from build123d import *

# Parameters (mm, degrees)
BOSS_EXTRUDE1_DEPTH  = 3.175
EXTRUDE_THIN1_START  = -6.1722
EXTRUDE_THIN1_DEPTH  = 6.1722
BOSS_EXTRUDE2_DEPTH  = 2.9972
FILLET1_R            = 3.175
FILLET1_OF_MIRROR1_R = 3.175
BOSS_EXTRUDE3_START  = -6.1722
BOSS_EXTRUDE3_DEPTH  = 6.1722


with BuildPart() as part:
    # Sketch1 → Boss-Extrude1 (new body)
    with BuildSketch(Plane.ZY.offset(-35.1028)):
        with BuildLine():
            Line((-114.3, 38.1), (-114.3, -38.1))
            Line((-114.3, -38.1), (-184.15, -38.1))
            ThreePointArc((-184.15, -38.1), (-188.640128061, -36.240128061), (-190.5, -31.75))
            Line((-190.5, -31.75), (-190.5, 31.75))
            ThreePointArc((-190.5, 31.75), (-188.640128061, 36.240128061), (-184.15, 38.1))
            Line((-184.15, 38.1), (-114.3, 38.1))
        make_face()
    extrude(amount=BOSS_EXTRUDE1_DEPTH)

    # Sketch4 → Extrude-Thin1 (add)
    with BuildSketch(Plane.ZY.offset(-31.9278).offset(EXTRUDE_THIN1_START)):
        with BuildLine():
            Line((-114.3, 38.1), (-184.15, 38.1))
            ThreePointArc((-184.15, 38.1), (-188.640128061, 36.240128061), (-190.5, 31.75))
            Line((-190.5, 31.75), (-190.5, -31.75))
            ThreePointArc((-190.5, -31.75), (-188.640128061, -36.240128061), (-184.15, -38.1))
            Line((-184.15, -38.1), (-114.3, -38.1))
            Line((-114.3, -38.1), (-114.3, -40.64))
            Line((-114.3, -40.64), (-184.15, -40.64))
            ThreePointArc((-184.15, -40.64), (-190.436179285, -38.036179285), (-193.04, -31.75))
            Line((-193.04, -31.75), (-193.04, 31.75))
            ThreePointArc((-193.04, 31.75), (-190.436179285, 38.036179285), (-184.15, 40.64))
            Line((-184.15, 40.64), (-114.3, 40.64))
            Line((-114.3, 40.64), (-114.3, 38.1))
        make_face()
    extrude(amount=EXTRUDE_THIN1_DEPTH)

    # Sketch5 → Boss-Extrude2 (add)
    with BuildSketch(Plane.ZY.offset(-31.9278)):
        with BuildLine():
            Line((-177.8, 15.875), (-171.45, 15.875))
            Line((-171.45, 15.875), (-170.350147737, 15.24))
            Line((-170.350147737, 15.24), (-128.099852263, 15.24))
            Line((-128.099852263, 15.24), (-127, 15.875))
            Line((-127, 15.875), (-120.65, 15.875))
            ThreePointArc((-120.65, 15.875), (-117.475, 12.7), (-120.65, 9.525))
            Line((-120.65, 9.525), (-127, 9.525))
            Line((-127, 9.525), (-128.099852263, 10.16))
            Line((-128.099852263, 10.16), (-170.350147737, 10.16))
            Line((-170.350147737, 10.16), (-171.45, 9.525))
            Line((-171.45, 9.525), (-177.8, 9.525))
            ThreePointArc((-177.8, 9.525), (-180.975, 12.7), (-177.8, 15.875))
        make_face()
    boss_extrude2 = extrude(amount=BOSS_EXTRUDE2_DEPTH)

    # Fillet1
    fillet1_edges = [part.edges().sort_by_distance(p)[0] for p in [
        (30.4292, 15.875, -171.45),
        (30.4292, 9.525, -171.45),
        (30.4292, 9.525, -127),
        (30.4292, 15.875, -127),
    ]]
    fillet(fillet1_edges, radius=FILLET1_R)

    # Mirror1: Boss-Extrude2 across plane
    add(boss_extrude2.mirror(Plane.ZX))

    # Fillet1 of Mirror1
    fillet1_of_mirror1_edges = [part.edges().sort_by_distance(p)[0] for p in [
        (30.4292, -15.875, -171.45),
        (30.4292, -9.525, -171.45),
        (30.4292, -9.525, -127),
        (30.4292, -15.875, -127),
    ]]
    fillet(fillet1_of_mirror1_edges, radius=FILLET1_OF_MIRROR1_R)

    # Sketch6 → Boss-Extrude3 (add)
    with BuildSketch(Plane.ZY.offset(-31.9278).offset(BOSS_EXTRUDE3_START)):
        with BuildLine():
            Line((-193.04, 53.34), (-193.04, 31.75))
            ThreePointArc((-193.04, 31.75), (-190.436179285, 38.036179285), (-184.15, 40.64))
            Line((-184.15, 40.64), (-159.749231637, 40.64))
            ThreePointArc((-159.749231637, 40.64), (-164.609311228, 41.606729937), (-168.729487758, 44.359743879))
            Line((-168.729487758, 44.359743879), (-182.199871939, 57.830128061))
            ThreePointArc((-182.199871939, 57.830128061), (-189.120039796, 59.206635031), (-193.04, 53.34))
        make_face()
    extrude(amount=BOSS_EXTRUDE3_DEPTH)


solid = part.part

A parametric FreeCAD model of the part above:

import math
import FreeCAD as App
import Part
import Sketcher

V = App.Vector
Q = App.Units.Quantity


def edges_at(feature, points):
    """Names of the edges that pass closest to the given points."""
    edges = feature.Shape.Edges
    near = lambda p: min(range(len(edges)), key=lambda i: edges[i].distToShape(Part.Vertex(*p))[0])
    return sorted({f"Edge{near(p) + 1}" for p in points})

doc = App.newDocument("Part")
body = doc.addObject("PartDesign::Body", "Body")

sketch1 = body.newObject("Sketcher::SketchObject", "Sketch")
sketch1.AttachmentSupport = (doc.getObject("YZ_Plane"), [""])
sketch1.MapMode = "FlatFace"
sketch1.AttachmentOffset = App.Placement(V(0, 0, 1.382 * 25.4), App.Rotation())
sketch1.addGeometry(Part.LineSegment(V(-38.1, -114.3, 0), V(38.1, -114.3, 0)), False)
sketch1.addGeometry(Part.LineSegment(V(38.1, -114.3, 0), V(38.1, -184.15, 0)), False)
sketch1.addGeometry(Part.ArcOfCircle(Part.Circle(V(31.75, -184.15, 0), V(0, 0, 1), 6.35), math.radians(-90), math.radians(0)), False)
sketch1.addGeometry(Part.LineSegment(V(31.75, -190.5, 0), V(-31.75, -190.5, 0)), False)
sketch1.addGeometry(Part.ArcOfCircle(Part.Circle(V(-31.75, -184.15, 0), V(0, 0, 1), 6.35), math.radians(180), math.radians(270)), False)
sketch1.addGeometry(Part.LineSegment(V(-38.1, -184.15, 0), V(-38.1, -114.3, 0)), False)
sketch1.addConstraint(Sketcher.Constraint("Coincident", 0, 2, 1, 1))
sketch1.addConstraint(Sketcher.Constraint("Tangent", 1, 2, 2, 2))
sketch1.addConstraint(Sketcher.Constraint("Tangent", 2, 1, 3, 1))
sketch1.addConstraint(Sketcher.Constraint("Tangent", 3, 2, 4, 2))
sketch1.addConstraint(Sketcher.Constraint("Tangent", 4, 1, 5, 1))
sketch1.addConstraint(Sketcher.Constraint("Coincident", 5, 2, 0, 1))
sketch1.addConstraint(Sketcher.Constraint("Horizontal", 0))
sketch1.addConstraint(Sketcher.Constraint("Vertical", 1))
sketch1.addConstraint(Sketcher.Constraint("Horizontal", 3))
sketch1.addConstraint(Sketcher.Constraint("Vertical", 5))
sketch1.addConstraint(Sketcher.Constraint("Equal", 2, 4))
sketch1.addConstraint(Sketcher.Constraint("DistanceX", 0, 1, 0, 2, Q("3 in")))
sketch1.addConstraint(Sketcher.Constraint("Radius", 2, Q("0.25 in")))
sketch1.addConstraint(Sketcher.Constraint("DistanceY", 2, 1, 0, 2, Q("3 in")))
sketch1.addConstraint(Sketcher.Constraint("DistanceX", -1, 1, 0, 2, Q("1.5 in")))
sketch1.addConstraint(Sketcher.Constraint("DistanceY", 0, 2, -1, 1, Q("4.5 in")))
pad1 = body.newObject("PartDesign::Pad", "Pad")
pad1.Profile = sketch1
pad1.Length = Q("0.125 in")
pad1.Reversed = True

sketch2 = body.newObject("Sketcher::SketchObject", "Sketch001")
sketch2.AttachmentSupport = (doc.getObject("YZ_Plane"), [""])
sketch2.MapMode = "FlatFace"
sketch2.AttachmentOffset = App.Placement(V(0, 0, 1.5 * 25.4), App.Rotation())
sketch2.addGeometry(Part.LineSegment(V(38.1, -184.15, 0), V(38.1, -114.3, 0)), False)
sketch2.addGeometry(Part.LineSegment(V(38.1, -114.3, 0), V(40.64, -114.3, 0)), False)
sketch2.addGeometry(Part.LineSegment(V(40.64, -114.3, 0), V(40.64, -184.15, 0)), False)
sketch2.addGeometry(Part.ArcOfCircle(Part.Circle(V(31.75, -184.15, 0), V(0, 0, 1), 8.89), math.radians(-90), math.radians(0)), False)
sketch2.addGeometry(Part.LineSegment(V(31.75, -193.04, 0), V(-31.75, -193.04, 0)), False)
sketch2.addGeometry(Part.ArcOfCircle(Part.Circle(V(-31.75, -184.15, 0), V(0, 0, 1), 8.89), math.radians(180), math.radians(270)), False)
sketch2.addGeometry(Part.LineSegment(V(-40.64, -184.15, 0), V(-40.64, -114.3, 0)), False)
sketch2.addGeometry(Part.LineSegment(V(-40.64, -114.3, 0), V(-38.1, -114.3, 0)), False)
sketch2.addGeometry(Part.LineSegment(V(-38.1, -114.3, 0), V(-38.1, -184.15, 0)), False)
sketch2.addGeometry(Part.ArcOfCircle(Part.Circle(V(-31.75, -184.15, 0), V(0, 0, 1), 6.35), math.radians(180), math.radians(270)), False)
sketch2.addGeometry(Part.LineSegment(V(-31.75, -190.5, 0), V(31.75, -190.5, 0)), False)
sketch2.addGeometry(Part.ArcOfCircle(Part.Circle(V(31.75, -184.15, 0), V(0, 0, 1), 6.35), math.radians(-90), math.radians(0)), False)
sketch2.addConstraint(Sketcher.Constraint("Coincident", 0, 2, 1, 1))
sketch2.addConstraint(Sketcher.Constraint("Coincident", 1, 2, 2, 1))
sketch2.addConstraint(Sketcher.Constraint("Tangent", 2, 2, 3, 2))
sketch2.addConstraint(Sketcher.Constraint("Tangent", 3, 1, 4, 1))
sketch2.addConstraint(Sketcher.Constraint("Tangent", 4, 2, 5, 2))
sketch2.addConstraint(Sketcher.Constraint("Tangent", 5, 1, 6, 1))
sketch2.addConstraint(Sketcher.Constraint("Coincident", 6, 2, 7, 1))
sketch2.addConstraint(Sketcher.Constraint("Coincident", 7, 2, 8, 1))
sketch2.addConstraint(Sketcher.Constraint("Tangent", 8, 2, 9, 1))
sketch2.addConstraint(Sketcher.Constraint("Tangent", 9, 2, 10, 1))
sketch2.addConstraint(Sketcher.Constraint("Tangent", 10, 2, 11, 1))
sketch2.addConstraint(Sketcher.Constraint("Tangent", 11, 2, 0, 1))
sketch2.addConstraint(Sketcher.Constraint("Vertical", 0))
sketch2.addConstraint(Sketcher.Constraint("Horizontal", 1))
sketch2.addConstraint(Sketcher.Constraint("Vertical", 2))
sketch2.addConstraint(Sketcher.Constraint("Horizontal", 4))
sketch2.addConstraint(Sketcher.Constraint("Vertical", 6))
sketch2.addConstraint(Sketcher.Constraint("Horizontal", 7))
sketch2.addConstraint(Sketcher.Constraint("Vertical", 8))
sketch2.addConstraint(Sketcher.Constraint("Horizontal", 10))
sketch2.addConstraint(Sketcher.Constraint("Coincident", 9, 3, 5, 3))
sketch2.addConstraint(Sketcher.Constraint("Coincident", 11, 3, 3, 3))
sketch2.addConstraint(Sketcher.Constraint("Equal", 3, 5))
sketch2.addConstraint(Sketcher.Constraint("Symmetric", 1, 2, 6, 2, -2))
sketch2.addConstraint(Sketcher.Constraint("Radius", 3, Q("0.35 in")))
sketch2.addConstraint(Sketcher.Constraint("Radius", 9, Q("0.25 in")))
sketch2.addConstraint(Sketcher.Constraint("DistanceX", 4, 2, 4, 1, Q("2.5 in")))
sketch2.addConstraint(Sketcher.Constraint("DistanceY", 0, 1, 0, 2, Q("2.75 in")))
sketch2.addConstraint(Sketcher.Constraint("DistanceY", 0, 2, -1, 1, Q("4.5 in")))
pad2 = body.newObject("PartDesign::Pad", "Pad001")
pad2.Profile = sketch2
pad2.Length = Q("0.243 in")
pad2.Reversed = True

sketch3 = body.newObject("Sketcher::SketchObject", "Sketch002")
sketch3.AttachmentSupport = (doc.getObject("YZ_Plane"), [""])
sketch3.MapMode = "FlatFace"
sketch3.AttachmentOffset = App.Placement(V(0, 0, 1.257 * 25.4), App.Rotation())
sketch3.addGeometry(Part.LineSegment(V(15.875, -171.45, 0), V(15.875, -177.8, 0)), False)
sketch3.addGeometry(Part.ArcOfCircle(Part.Circle(V(12.7, -177.8, 0), V(0, 0, 1), 3.175), math.radians(180), math.radians(360)), False)
sketch3.addGeometry(Part.LineSegment(V(9.525, -177.8, 0), V(9.525, -171.45, 0)), False)
sketch3.addGeometry(Part.LineSegment(V(9.525, -171.45, 0), V(10.16, -170.350148, 0)), False)
sketch3.addGeometry(Part.LineSegment(V(10.16, -170.350148, 0), V(10.16, -128.099852, 0)), False)
sketch3.addGeometry(Part.LineSegment(V(10.16, -128.099852, 0), V(9.525, -127, 0)), False)
sketch3.addGeometry(Part.LineSegment(V(9.525, -127, 0), V(9.525, -120.65, 0)), False)
sketch3.addGeometry(Part.ArcOfCircle(Part.Circle(V(12.7, -120.65, 0), V(0, 0, 1), 3.175), math.radians(0), math.radians(180)), False)
sketch3.addGeometry(Part.LineSegment(V(15.875, -120.65, 0), V(15.875, -127, 0)), False)
sketch3.addGeometry(Part.LineSegment(V(15.875, -127, 0), V(15.24, -128.099852, 0)), False)
sketch3.addGeometry(Part.LineSegment(V(15.24, -128.099852, 0), V(15.24, -170.350148, 0)), False)
sketch3.addGeometry(Part.LineSegment(V(15.24, -170.350148, 0), V(15.875, -171.45, 0)), False)
sketch3.addConstraint(Sketcher.Constraint("Tangent", 0, 2, 1, 2))
sketch3.addConstraint(Sketcher.Constraint("Tangent", 1, 1, 2, 1))
sketch3.addConstraint(Sketcher.Constraint("Coincident", 2, 2, 3, 1))
sketch3.addConstraint(Sketcher.Constraint("Coincident", 3, 2, 4, 1))
sketch3.addConstraint(Sketcher.Constraint("Coincident", 4, 2, 5, 1))
sketch3.addConstraint(Sketcher.Constraint("Coincident", 5, 2, 6, 1))
sketch3.addConstraint(Sketcher.Constraint("Tangent", 6, 2, 7, 2))
sketch3.addConstraint(Sketcher.Constraint("Tangent", 7, 1, 8, 1))
sketch3.addConstraint(Sketcher.Constraint("Coincident", 8, 2, 9, 1))
sketch3.addConstraint(Sketcher.Constraint("Coincident", 9, 2, 10, 1))
sketch3.addConstraint(Sketcher.Constraint("Coincident", 10, 2, 11, 1))
sketch3.addConstraint(Sketcher.Constraint("Coincident", 11, 2, 0, 1))
sketch3.addConstraint(Sketcher.Constraint("Vertical", 0))
sketch3.addConstraint(Sketcher.Constraint("Vertical", 2))
sketch3.addConstraint(Sketcher.Constraint("Vertical", 4))
sketch3.addConstraint(Sketcher.Constraint("Vertical", 6))
sketch3.addConstraint(Sketcher.Constraint("Vertical", 8))
sketch3.addConstraint(Sketcher.Constraint("Vertical", 10))
sketch3.addConstraint(Sketcher.Constraint("Equal", 1, 7))
sketch3.addConstraint(Sketcher.Constraint("Parallel", 3, 9))
sketch3.addConstraint(Sketcher.Constraint("Parallel", 5, 11))
sketch3.addConstraint(Sketcher.Constraint("Horizontal", 5, 2, 8, 2))
sketch3.addConstraint(Sketcher.Constraint("Horizontal", 4, 2, 9, 2))
sketch3.addConstraint(Sketcher.Constraint("Horizontal", 3, 2, 10, 2))
sketch3.addConstraint(Sketcher.Constraint("Horizontal", 2, 2, 11, 2))
sketch3.addConstraint(Sketcher.Constraint("Vertical", 1, 3, 7, 3))
sketch3.addConstraint(Sketcher.Constraint("Equal", 2, 6))
sketch3.addConstraint(Sketcher.Constraint("DistanceY", 1, 3, -1, 1, Q("7 in")))
sketch3.addConstraint(Sketcher.Constraint("DistanceY", 5, 2, -1, 1, Q("5 in")))
sketch3.addConstraint(Sketcher.Constraint("Angle", 3, Q("60 deg")))
sketch3.addConstraint(Sketcher.Constraint("Radius", 1, Q("0.125 in")))
sketch3.addConstraint(Sketcher.Constraint("DistanceY", 0, 2, 0, 1, Q("0.25 in")))
sketch3.addConstraint(Sketcher.Constraint("DistanceX", -1, 1, 1, 3, Q("0.5 in")))
sketch3.addConstraint(Sketcher.Constraint("DistanceX", -1, 1, 3, 2, Q("0.4 in")))
pad3 = body.newObject("PartDesign::Pad", "Pad002")
pad3.Profile = sketch3
pad3.Length = Q("0.118 in")
pad3.Reversed = True
doc.recompute()

fillet = body.newObject("PartDesign::Fillet", "Fillet")
fillet.Base = (pad3, edges_at(pad3, [
    (30.429, 15.875, -171.45),
    (30.429, 9.525, -171.45),
    (30.429, 9.525, -127),
    (30.429, 15.875, -127),
]))
fillet.Radius = Q("0.125 in")
doc.recompute()

mirrored = body.newObject("PartDesign::Mirrored", "Mirrored")
mirrored.Originals = [pad3]
mirrored.MirrorPlane = (doc.getObject("XZ_Plane"), [""])
body.Tip = mirrored
doc.recompute()

fillet2 = body.newObject("PartDesign::Fillet", "Fillet001")
fillet2.Base = (mirrored, edges_at(mirrored, [
    (30.429, -15.875, -171.45),
    (30.429, -9.525, -171.45),
    (30.429, -9.525, -127),
    (30.429, -15.875, -127),
]))
fillet2.Radius = Q("0.125 in")

sketch4 = body.newObject("Sketcher::SketchObject", "Sketch003")
sketch4.AttachmentSupport = (doc.getObject("YZ_Plane"), [""])
sketch4.MapMode = "FlatFace"
sketch4.AttachmentOffset = App.Placement(V(0, 0, 1.5 * 25.4), App.Rotation())
sketch4.addGeometry(Part.LineSegment(V(53.34, -193.04, 0), V(31.75, -193.04, 0)), False)
sketch4.addGeometry(Part.ArcOfCircle(Part.Circle(V(31.75, -184.15, 0), V(0, 0, 1), 8.89), math.radians(-90), math.radians(0)), False)
sketch4.addGeometry(Part.LineSegment(V(40.64, -184.15, 0), V(40.64, -159.749232, 0)), False)
sketch4.addGeometry(Part.ArcOfCircle(Part.Circle(V(53.34, -159.749232, 0), V(0, 0, 1), 12.7), math.radians(180), math.radians(225)), False)
sketch4.addGeometry(Part.LineSegment(V(44.359744, -168.729488, 0), V(57.830128, -182.199872, 0)), False)
sketch4.addGeometry(Part.ArcOfCircle(Part.Circle(V(53.34, -186.69, 0), V(0, 0, 1), 6.35), math.radians(-90), math.radians(45)), False)
sketch4.addConstraint(Sketcher.Constraint("Tangent", 0, 2, 1, 1))
sketch4.addConstraint(Sketcher.Constraint("Tangent", 1, 2, 2, 1))
sketch4.addConstraint(Sketcher.Constraint("Tangent", 2, 2, 3, 1))
sketch4.addConstraint(Sketcher.Constraint("Tangent", 3, 2, 4, 1))
sketch4.addConstraint(Sketcher.Constraint("Tangent", 4, 2, 5, 2))
sketch4.addConstraint(Sketcher.Constraint("Tangent", 5, 1, 0, 1))
sketch4.addConstraint(Sketcher.Constraint("Horizontal", 0))
sketch4.addConstraint(Sketcher.Constraint("Vertical", 2))
sketch4.addConstraint(Sketcher.Constraint("Vertical", 3, 3, 5, 3))
sketch4.addConstraint(Sketcher.Constraint("Radius", 3, Q("0.5 in")))
sketch4.addConstraint(Sketcher.Constraint("Radius", 1, Q("0.35 in")))
sketch4.addConstraint(Sketcher.Constraint("Radius", 5, Q("0.25 in")))
sketch4.addConstraint(Sketcher.Constraint("Angle", 4, Q("-45 deg")))
sketch4.addConstraint(Sketcher.Constraint("DistanceX", -1, 1, 3, 3, Q("2.1 in")))
sketch4.addConstraint(Sketcher.Constraint("DistanceY", 0, 2, -1, 1, Q("7.6 in")))
pad4 = body.newObject("PartDesign::Pad", "Pad003")
pad4.Profile = sketch4
pad4.Length = Q("0.243 in")
pad4.Reversed = True

doc.recompute()
